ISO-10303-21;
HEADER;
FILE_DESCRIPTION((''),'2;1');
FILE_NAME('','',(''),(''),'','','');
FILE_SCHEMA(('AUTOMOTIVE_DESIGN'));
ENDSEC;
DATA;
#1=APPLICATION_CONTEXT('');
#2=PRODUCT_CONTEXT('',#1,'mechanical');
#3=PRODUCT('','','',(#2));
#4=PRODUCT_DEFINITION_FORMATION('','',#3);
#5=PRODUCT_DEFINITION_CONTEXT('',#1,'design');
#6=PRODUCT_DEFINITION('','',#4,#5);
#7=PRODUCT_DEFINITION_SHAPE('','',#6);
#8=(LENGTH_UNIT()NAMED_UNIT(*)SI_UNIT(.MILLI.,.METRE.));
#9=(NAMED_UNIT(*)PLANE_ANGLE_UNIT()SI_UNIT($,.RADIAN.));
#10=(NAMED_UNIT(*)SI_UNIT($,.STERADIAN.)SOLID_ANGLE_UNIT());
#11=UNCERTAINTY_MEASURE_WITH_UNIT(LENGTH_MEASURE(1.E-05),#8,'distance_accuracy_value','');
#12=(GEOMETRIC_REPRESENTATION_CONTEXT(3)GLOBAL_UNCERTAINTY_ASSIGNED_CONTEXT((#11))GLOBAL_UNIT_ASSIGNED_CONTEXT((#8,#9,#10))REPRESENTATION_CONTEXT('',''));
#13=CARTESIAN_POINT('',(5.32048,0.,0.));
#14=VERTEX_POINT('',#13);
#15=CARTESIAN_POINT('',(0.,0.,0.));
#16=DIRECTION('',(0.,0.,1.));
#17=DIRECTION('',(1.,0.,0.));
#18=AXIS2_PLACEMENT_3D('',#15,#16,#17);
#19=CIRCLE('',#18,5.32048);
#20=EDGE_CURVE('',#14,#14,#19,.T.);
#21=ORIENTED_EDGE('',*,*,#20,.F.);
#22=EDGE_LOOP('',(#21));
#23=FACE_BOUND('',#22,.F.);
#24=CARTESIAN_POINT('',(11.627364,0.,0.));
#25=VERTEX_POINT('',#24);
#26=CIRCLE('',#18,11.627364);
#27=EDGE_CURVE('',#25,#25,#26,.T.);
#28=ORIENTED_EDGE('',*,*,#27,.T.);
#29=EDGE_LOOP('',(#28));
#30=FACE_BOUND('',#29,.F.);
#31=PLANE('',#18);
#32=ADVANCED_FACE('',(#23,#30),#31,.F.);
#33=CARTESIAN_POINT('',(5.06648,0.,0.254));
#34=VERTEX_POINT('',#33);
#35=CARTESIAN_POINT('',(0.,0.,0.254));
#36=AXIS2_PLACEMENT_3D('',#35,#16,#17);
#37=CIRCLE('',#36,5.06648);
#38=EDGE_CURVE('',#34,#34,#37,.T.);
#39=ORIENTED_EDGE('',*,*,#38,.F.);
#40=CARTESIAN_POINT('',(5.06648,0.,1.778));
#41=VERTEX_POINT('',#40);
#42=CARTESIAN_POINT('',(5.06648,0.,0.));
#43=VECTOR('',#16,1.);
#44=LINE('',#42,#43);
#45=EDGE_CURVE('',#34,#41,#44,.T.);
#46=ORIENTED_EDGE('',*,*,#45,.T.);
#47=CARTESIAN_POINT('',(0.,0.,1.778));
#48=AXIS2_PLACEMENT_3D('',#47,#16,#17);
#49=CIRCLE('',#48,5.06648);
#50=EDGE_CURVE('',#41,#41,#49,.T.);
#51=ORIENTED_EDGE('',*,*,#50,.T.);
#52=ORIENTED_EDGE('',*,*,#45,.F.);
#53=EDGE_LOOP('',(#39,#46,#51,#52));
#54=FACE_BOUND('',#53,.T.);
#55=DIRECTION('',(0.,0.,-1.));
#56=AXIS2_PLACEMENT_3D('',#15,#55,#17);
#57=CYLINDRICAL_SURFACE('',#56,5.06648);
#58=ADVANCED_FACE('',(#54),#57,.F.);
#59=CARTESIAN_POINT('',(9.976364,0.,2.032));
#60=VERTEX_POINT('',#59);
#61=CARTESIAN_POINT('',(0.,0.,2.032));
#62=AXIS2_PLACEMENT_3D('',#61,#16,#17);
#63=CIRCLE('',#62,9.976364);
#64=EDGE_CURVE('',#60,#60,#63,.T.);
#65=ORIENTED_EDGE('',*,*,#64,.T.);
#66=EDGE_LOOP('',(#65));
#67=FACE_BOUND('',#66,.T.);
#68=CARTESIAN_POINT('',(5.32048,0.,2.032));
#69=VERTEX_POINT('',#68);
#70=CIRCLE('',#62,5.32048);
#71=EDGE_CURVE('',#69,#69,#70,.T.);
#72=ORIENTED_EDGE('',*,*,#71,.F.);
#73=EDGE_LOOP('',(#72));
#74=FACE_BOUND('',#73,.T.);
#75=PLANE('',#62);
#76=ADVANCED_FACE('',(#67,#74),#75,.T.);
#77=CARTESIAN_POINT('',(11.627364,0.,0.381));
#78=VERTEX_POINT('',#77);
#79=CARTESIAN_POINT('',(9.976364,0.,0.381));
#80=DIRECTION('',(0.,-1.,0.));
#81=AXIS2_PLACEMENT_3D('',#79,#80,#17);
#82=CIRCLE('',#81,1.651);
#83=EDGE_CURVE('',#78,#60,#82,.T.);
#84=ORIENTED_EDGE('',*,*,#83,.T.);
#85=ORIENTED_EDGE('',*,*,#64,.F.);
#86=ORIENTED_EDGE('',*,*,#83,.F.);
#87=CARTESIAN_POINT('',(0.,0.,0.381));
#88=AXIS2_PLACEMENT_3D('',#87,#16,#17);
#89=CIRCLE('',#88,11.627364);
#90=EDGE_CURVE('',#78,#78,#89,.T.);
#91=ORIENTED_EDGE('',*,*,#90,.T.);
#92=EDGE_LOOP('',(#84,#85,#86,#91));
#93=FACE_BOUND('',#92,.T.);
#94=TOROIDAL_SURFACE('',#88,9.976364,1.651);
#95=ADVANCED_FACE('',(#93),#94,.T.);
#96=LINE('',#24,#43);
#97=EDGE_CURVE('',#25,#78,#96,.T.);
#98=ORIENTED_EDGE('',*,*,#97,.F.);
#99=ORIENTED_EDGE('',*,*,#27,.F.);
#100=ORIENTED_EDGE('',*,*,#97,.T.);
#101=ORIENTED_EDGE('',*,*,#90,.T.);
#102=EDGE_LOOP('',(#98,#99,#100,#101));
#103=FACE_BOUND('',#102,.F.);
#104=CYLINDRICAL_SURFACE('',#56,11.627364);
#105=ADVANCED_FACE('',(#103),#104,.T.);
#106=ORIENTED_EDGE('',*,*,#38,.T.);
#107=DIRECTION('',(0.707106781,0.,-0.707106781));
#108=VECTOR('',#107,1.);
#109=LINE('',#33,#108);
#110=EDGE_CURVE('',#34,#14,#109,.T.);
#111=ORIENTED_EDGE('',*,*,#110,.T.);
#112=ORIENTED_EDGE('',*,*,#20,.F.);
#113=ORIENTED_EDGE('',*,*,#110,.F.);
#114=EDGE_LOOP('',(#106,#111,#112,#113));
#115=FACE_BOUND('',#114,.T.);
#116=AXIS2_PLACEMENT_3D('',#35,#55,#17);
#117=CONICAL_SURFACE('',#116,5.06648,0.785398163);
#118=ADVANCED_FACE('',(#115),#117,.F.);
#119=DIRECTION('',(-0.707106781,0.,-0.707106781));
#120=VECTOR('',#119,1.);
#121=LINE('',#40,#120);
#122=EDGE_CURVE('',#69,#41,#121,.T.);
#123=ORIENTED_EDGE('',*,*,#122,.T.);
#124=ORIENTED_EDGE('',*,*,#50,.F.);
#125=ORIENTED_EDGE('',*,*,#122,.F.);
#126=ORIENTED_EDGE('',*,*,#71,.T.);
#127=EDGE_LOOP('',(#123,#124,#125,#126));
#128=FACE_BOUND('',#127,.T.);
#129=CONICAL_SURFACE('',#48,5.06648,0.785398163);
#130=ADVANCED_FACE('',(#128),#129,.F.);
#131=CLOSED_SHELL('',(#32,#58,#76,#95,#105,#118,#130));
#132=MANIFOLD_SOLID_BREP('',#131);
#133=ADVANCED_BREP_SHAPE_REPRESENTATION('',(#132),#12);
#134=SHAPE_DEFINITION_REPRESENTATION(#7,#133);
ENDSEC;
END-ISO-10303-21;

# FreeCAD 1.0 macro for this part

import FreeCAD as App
import Part
import Sketcher
Q = App.Units.Quantity


def edges_at(feature, points):
    """Names of the edges that pass closest to the given points."""
    edges = feature.Shape.Edges
    near = lambda p: min(range(len(edges)), key=lambda i: edges[i].distToShape(Part.Vertex(*p))[0])
    return sorted({f"Edge{near(p) + 1}" for p in points})

doc = App.newDocument("Part")
body = doc.addObject("PartDesign::Body", "Body")

# Sketch on XY plane
sketch1 = body.newObject("Sketcher::SketchObject", "Sketch")
sketch1.AttachmentSupport = (doc.getObject("XY_Plane"), [""])
sketch1.MapMode = "FlatFace"
sketch1.addGeometry([
    Part.Circle(App.Vector(0, 0, 0), App.Vector(0, 0, 1), 11.627364),
    Part.Circle(App.Vector(0, 0, 0), App.Vector(0, 0, 1), 5.06648),
], False)
sketch1.addConstraint([
    Sketcher.Constraint("Coincident", 0, 3, -1, 1),
    Sketcher.Constraint("Coincident", 1, 3, -1, 1),
    Sketcher.Constraint("Diameter", 0, Q("23.254728 mm")),
    Sketcher.Constraint("Diameter", 1, Q("10.13296 mm")),
])
pad1 = body.newObject("PartDesign::Pad", "Pad")
pad1.Profile = sketch1
pad1.Length = Q("0.08 in")
doc.recompute()

fillet = body.newObject("PartDesign::Fillet", "Fillet")
fillet.Base = (pad1, edges_at(pad1, [(-11.627, 0, 2.032)]))
fillet.Radius = Q("0.065 in")
doc.recompute()

chamfer = body.newObject("PartDesign::Chamfer", "Chamfer")
chamfer.Base = (fillet, edges_at(fillet, [(-5.066, 0, 2.032)]))
chamfer.Size = Q("0.01 in")
doc.recompute()

chamfer2 = body.newObject("PartDesign::Chamfer", "Chamfer001")
chamfer2.Base = (chamfer, edges_at(chamfer, [(-5.066, 0, 0)]))
chamfer2.Size = Q("0.01 in")

doc.recompute()
